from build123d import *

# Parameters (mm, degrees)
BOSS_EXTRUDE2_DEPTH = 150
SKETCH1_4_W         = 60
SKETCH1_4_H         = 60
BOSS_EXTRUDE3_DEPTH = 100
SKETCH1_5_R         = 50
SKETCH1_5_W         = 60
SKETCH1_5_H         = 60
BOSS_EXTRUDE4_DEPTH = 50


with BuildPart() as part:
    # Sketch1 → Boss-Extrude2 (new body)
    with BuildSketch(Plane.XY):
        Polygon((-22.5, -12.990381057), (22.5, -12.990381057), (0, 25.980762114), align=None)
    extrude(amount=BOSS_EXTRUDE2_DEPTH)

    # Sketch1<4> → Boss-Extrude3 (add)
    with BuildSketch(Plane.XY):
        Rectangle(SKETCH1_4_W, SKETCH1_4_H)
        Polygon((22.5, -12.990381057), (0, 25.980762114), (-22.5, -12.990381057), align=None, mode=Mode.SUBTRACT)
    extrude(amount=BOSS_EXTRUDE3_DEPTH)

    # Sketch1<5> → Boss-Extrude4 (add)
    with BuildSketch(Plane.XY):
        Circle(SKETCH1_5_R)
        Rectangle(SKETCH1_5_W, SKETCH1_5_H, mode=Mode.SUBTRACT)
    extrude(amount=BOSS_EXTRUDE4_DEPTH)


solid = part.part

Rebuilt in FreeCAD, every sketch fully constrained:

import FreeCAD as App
import Part
import Sketcher

V = App.Vector
Q = App.Units.Quantity


def add_polygon(sketch, points):
    """Adds a closed chain of lines whose ends are joined by coincident constraints."""
    first, n = sketch.GeometryCount, len(points)
    for a, b in zip(points, points[1:] + points[:1]):
        sketch.addGeometry(Part.LineSegment(App.Vector(*a, 0), App.Vector(*b, 0)), False)
    for i in range(n):
        sketch.addConstraint(Sketcher.Constraint("Coincident", first + i, 2, first + (i + 1) % n, 1))

doc = App.newDocument("Part")
body = doc.addObject("PartDesign::Body", "Body")

sketch1 = doc.addObject("Sketcher::SketchObject", "Sketch")
body.addObject(sketch1)
sketch1.AttachmentSupport = (doc.XY_Plane, [""])
sketch1.MapMode = "FlatFace"
add_polygon(sketch1, [(-22, -13), (22, -13), (0, 26)])
sketch1.addConstraint(Sketcher.Constraint("Horizontal", 0))
sketch1.addConstraint(Sketcher.Constraint("PointOnObject", 1, 2, -2))
sketch1.addConstraint(Sketcher.Constraint("Equal", 1, 2))
sketch1.addConstraint(Sketcher.Constraint("DistanceX", 0, 1, 0, 2, Q("45 mm")))
sketch1.addConstraint(Sketcher.Constraint("Angle", 1, Q("120 deg")))
sketch1.addConstraint(Sketcher.Constraint("DistanceY", 0, 2, -1, 1, Q("12.990381 mm")))
pad1 = doc.addObject("PartDesign::Pad", "Pad")
body.addObject(pad1)
pad1.Profile = sketch1
pad1.Length = 150

sketch2 = doc.addObject("Sketcher::SketchObject", "Sketch001")
body.addObject(sketch2)
sketch2.AttachmentSupport = (doc.XY_Plane, [""])
sketch2.MapMode = "FlatFace"
add_polygon(sketch2, [(-30, 30), (-30, -30), (30, -30), (30, 30)])
add_polygon(sketch2, [(0, 26), (22, -13), (-22, -13)])
sketch2.addConstraint(Sketcher.Constraint("Vertical", 0))
sketch2.addConstraint(Sketcher.Constraint("Horizontal", 1))
sketch2.addConstraint(Sketcher.Constraint("Vertical", 2))
sketch2.addConstraint(Sketcher.Constraint("Horizontal", 3))
sketch2.addConstraint(Sketcher.Constraint("Horizontal", 5))
sketch2.addConstraint(Sketcher.Constraint("Symmetric", 0, 2, 2, 2, -1, 1))
sketch2.addConstraint(Sketcher.Constraint("PointOnObject", 6, 2, -2))
sketch2.addConstraint(Sketcher.Constraint("Equal", 3, 0))
sketch2.addConstraint(Sketcher.Constraint("Equal", 4, 6))
sketch2.addConstraint(Sketcher.Constraint("DistanceX", 1, 1, 1, 2, Q("60 mm")))
sketch2.addConstraint(Sketcher.Constraint("DistanceX", 5, 2, 5, 1, Q("45 mm")))
sketch2.addConstraint(Sketcher.Constraint("Angle", 4, Q("-60 deg")))
sketch2.addConstraint(Sketcher.Constraint("DistanceY", 4, 2, -1, 1, Q("12.990381 mm")))
pad2 = doc.addObject("PartDesign::Pad", "Pad001")
body.addObject(pad2)
pad2.Profile = sketch2
pad2.Length = 100

sketch3 = doc.addObject("Sketcher::SketchObject", "Sketch002")
body.addObject(sketch3)
sketch3.AttachmentSupport = (doc.XY_Plane, [""])
sketch3.MapMode = "FlatFace"
sketch3.addGeometry(Part.Circle(V(0, 0, 0), V(0, 0, 1), 50), False)
add_polygon(sketch3, [(30, -30), (-30, -30), (-30, 30), (30, 30)])
sketch3.addConstraint(Sketcher.Constraint("Horizontal", 1))
sketch3.addConstraint(Sketcher.Constraint("Vertical", 2))
sketch3.addConstraint(Sketcher.Constraint("Horizontal", 3))
sketch3.addConstraint(Sketcher.Constraint("Vertical", 4))
sketch3.addConstraint(Sketcher.Constraint("Coincident", 0, 3, -1, 1))
sketch3.addConstraint(Sketcher.Constraint("Symmetric", 1, 2, 3, 2, -1, 1))
sketch3.addConstraint(Sketcher.Constraint("Equal", 3, 2))
sketch3.addConstraint(Sketcher.Constraint("Diameter", 0, Q("100 mm")))
sketch3.addConstraint(Sketcher.Constraint("DistanceX", 1, 2, 1, 1, Q("60 mm")))
pad3 = doc.addObject("PartDesign::Pad", "Pad002")
body.addObject(pad3)
pad3.Profile = sketch3
pad3.Length = 50

doc.recompute()
